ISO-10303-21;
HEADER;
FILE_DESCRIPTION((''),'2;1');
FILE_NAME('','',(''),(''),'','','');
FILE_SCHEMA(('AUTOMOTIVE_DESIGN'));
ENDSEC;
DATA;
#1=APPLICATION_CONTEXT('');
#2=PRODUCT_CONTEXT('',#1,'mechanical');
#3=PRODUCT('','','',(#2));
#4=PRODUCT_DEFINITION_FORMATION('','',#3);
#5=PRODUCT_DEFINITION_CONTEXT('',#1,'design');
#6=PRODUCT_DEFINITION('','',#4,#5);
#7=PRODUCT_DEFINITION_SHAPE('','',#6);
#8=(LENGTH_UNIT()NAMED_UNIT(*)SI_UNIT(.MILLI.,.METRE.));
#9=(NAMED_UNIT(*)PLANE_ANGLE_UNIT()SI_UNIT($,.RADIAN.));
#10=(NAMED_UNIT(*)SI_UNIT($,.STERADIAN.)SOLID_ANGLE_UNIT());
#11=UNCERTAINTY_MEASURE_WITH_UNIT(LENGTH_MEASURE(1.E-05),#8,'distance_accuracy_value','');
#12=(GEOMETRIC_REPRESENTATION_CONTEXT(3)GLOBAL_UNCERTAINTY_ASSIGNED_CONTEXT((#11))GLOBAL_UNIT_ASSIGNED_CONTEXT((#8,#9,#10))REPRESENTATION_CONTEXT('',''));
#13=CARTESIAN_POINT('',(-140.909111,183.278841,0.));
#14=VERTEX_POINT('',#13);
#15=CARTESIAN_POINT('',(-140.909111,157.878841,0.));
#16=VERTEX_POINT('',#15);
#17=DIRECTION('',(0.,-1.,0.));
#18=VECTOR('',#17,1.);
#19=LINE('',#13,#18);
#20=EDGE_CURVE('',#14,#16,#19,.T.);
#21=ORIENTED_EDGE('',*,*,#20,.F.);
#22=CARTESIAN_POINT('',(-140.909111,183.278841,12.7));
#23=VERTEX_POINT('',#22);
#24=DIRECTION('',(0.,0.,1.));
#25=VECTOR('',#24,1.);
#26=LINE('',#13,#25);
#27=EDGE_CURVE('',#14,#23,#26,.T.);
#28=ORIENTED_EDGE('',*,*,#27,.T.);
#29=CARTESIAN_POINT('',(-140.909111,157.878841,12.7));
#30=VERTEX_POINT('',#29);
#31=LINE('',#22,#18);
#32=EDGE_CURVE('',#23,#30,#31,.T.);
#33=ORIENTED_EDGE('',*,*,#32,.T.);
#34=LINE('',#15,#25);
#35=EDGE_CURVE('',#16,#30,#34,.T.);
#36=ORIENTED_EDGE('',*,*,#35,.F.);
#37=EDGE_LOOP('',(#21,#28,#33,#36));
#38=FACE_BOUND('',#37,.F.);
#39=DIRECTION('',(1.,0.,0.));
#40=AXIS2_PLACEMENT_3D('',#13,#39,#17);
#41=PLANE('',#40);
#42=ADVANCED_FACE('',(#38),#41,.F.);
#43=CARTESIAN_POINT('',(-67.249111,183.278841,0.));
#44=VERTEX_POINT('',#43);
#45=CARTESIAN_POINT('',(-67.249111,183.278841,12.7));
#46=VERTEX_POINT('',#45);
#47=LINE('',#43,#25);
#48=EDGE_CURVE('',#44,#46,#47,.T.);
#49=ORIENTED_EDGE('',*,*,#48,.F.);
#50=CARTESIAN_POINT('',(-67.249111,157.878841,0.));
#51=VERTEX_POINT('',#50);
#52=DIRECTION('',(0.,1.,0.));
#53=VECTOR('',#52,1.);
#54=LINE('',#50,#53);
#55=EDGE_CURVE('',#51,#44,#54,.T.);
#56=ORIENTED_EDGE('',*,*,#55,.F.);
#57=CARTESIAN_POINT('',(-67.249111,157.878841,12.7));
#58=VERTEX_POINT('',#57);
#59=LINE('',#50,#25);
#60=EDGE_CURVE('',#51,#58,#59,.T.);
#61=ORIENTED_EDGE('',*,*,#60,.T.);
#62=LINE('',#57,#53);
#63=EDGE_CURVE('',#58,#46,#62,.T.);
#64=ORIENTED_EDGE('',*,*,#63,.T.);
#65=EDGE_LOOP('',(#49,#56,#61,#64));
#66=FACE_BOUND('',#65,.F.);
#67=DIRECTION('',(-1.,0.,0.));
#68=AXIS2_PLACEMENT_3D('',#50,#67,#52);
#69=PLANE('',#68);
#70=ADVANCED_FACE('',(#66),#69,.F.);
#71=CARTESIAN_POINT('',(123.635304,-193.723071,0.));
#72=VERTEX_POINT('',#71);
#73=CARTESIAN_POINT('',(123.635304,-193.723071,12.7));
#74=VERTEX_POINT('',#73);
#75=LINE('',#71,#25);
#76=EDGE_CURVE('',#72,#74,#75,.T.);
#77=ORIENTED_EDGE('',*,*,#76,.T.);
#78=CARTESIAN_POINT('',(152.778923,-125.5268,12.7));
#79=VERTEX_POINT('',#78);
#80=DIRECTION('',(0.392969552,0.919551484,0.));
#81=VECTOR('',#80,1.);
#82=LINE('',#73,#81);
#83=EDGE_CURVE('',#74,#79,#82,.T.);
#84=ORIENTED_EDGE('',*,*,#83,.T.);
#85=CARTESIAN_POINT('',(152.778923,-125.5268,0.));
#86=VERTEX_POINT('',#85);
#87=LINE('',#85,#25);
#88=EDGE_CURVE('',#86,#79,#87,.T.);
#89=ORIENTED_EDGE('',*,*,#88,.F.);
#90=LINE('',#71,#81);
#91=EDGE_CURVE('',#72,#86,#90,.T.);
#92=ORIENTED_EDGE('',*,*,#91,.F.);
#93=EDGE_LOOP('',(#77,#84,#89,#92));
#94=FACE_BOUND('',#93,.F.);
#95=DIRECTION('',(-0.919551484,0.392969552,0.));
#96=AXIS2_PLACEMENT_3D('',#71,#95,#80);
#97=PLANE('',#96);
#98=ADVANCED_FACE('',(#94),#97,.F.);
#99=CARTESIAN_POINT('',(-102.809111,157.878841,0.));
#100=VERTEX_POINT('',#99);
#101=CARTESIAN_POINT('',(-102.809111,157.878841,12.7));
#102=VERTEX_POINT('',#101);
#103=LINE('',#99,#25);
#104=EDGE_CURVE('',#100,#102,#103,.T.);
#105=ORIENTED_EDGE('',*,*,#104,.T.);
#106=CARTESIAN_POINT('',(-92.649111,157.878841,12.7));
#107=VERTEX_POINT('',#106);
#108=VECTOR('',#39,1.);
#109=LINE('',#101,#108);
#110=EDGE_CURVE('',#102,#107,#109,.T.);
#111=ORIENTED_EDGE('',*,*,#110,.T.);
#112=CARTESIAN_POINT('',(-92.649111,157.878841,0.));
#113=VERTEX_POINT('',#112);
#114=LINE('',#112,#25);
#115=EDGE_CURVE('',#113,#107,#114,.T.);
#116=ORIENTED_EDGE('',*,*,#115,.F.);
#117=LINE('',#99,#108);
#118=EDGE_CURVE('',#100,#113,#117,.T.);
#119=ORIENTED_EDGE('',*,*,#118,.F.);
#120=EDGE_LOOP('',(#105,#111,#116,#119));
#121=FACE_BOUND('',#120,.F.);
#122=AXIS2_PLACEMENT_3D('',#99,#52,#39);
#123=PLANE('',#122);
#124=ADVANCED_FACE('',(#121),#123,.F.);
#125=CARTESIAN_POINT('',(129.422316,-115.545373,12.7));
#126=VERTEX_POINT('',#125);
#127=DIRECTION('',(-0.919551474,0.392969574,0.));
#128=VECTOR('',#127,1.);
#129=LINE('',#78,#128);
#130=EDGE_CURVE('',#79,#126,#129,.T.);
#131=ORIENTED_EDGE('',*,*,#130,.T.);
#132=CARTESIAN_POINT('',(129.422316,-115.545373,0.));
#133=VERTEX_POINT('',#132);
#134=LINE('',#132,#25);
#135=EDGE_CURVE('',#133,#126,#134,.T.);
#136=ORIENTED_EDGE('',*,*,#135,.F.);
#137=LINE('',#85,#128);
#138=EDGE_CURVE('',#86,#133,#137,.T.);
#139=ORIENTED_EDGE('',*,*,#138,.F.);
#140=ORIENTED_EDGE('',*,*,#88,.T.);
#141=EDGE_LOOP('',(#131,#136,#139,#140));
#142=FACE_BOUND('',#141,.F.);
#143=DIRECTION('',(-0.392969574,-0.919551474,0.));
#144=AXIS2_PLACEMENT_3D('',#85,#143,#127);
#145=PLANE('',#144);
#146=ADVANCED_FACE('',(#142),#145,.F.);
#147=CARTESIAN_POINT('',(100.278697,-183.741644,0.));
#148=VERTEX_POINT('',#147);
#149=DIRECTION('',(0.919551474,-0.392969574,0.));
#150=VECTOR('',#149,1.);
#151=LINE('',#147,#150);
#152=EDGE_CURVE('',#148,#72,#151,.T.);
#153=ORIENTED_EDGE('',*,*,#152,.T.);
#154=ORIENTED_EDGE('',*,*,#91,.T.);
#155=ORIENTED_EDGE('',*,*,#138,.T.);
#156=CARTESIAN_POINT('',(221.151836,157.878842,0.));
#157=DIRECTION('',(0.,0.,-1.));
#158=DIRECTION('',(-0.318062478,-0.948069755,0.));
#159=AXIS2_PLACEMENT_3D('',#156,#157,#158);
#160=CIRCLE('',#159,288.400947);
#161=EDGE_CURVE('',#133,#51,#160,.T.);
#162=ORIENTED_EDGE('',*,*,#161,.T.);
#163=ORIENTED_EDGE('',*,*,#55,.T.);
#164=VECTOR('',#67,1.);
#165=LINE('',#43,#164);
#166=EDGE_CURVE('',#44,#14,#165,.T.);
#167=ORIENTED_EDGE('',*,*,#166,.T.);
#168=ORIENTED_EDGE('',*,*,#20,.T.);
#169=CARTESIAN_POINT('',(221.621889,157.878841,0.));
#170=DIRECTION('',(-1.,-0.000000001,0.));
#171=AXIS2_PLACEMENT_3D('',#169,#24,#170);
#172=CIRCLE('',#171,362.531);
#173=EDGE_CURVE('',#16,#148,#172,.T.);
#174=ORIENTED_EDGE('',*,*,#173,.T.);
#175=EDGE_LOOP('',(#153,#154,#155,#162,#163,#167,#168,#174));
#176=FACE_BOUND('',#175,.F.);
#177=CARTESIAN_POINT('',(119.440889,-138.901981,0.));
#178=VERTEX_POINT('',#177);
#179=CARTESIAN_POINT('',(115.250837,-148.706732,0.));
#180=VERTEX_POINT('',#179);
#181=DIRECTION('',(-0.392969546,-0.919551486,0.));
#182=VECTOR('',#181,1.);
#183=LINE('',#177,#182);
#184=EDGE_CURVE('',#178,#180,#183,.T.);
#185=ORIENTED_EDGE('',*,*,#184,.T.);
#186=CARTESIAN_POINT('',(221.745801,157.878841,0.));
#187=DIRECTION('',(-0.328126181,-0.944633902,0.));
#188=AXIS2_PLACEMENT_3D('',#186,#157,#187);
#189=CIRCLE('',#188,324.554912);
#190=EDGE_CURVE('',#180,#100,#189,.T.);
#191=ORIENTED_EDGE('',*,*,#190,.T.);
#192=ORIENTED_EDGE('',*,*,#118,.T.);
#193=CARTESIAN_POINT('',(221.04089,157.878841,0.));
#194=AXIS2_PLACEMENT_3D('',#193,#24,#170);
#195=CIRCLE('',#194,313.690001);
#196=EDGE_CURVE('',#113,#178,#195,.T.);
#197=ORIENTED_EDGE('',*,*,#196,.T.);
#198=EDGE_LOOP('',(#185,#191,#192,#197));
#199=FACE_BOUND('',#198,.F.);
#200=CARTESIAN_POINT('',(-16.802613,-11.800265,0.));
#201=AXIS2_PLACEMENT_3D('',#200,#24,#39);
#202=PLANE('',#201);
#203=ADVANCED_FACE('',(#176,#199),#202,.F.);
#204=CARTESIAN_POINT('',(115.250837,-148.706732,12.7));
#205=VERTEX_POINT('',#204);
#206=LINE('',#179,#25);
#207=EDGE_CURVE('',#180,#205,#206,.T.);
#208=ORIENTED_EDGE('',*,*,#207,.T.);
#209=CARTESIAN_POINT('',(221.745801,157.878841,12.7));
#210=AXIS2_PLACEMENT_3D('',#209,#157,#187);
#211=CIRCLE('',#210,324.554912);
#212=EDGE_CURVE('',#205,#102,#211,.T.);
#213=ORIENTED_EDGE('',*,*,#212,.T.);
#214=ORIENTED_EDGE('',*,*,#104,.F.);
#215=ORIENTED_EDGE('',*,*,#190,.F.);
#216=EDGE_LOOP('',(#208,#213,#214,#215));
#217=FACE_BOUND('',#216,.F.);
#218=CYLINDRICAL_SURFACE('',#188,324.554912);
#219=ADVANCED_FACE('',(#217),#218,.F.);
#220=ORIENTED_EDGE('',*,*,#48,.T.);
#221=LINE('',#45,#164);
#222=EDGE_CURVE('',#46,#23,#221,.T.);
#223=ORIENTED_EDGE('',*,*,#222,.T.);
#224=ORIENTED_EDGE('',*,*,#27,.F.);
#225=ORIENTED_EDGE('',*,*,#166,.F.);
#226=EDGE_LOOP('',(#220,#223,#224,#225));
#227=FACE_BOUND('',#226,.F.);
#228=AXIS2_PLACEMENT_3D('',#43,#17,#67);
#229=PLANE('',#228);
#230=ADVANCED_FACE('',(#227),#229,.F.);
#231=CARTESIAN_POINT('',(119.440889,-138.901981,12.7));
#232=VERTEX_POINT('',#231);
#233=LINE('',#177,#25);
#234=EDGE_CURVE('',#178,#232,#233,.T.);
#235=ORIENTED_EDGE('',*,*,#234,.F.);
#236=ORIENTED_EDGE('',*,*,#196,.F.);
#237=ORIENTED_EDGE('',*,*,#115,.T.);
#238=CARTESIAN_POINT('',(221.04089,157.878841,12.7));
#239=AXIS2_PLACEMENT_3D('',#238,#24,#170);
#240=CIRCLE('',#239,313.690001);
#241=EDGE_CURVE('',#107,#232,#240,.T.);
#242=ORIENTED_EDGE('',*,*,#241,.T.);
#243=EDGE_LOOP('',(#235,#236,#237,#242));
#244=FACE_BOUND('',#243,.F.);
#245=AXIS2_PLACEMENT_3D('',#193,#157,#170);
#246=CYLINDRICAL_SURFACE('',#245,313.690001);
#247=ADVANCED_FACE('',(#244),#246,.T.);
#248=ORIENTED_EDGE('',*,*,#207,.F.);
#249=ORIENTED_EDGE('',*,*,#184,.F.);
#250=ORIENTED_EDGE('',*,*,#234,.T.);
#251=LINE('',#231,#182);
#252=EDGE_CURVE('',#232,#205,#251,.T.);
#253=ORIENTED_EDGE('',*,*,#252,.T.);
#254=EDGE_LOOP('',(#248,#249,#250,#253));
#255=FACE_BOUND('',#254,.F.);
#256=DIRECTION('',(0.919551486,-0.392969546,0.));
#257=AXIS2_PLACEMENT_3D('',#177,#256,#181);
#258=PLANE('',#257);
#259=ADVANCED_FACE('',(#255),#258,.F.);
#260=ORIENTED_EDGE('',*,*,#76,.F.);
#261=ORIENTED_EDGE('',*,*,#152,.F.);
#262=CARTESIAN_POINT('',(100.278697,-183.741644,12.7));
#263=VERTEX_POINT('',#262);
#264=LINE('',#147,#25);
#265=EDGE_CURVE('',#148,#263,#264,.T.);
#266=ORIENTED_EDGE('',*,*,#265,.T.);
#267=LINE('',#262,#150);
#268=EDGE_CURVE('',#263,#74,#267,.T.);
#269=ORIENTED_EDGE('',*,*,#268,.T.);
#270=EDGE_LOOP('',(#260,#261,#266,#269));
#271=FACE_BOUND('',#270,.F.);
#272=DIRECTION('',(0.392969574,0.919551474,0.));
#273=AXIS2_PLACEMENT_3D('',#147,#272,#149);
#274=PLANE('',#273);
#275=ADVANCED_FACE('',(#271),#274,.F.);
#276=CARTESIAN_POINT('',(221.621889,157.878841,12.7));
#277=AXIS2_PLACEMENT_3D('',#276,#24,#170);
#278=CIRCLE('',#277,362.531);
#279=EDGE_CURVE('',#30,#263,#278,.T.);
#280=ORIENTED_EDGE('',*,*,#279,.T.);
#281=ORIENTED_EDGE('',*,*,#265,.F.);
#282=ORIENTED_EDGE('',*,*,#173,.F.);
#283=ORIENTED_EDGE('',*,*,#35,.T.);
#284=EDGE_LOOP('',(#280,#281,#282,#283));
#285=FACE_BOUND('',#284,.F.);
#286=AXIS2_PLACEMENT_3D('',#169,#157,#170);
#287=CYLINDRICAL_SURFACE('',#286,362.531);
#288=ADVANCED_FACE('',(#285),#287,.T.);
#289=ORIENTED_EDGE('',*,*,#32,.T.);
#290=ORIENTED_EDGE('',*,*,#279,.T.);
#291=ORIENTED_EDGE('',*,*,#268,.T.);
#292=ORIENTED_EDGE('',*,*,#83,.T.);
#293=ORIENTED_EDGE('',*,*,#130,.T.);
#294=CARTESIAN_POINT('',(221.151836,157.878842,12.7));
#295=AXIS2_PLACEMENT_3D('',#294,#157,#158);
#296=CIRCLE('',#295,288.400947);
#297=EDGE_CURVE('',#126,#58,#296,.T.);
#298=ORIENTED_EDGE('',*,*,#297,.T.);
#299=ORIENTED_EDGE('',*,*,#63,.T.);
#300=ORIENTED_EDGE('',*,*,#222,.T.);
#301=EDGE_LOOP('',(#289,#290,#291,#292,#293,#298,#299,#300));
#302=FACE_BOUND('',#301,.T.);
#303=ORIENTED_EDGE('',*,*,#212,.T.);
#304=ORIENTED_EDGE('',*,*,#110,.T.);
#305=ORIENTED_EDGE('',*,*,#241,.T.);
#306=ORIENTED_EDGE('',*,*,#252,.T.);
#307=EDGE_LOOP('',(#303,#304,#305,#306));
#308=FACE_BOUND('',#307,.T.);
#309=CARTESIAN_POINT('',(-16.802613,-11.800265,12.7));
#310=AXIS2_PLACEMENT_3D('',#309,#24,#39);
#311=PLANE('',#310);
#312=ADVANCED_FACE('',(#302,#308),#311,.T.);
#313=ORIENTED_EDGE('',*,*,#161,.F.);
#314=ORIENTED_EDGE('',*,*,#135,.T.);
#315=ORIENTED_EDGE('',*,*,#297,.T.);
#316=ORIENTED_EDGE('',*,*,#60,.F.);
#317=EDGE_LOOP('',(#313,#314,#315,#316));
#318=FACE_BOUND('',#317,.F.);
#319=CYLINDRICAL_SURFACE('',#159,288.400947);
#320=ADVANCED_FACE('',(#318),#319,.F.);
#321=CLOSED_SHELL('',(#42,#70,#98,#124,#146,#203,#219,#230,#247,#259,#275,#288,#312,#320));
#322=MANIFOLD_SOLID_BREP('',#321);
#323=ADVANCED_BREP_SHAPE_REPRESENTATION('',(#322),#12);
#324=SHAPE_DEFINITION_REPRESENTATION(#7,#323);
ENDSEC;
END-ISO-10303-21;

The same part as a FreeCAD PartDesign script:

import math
import FreeCAD as App
import Part
import Sketcher
from FreeCAD import Vector
Q = App.Units.Quantity

doc = App.newDocument("Part")
body = doc.addObject("PartDesign::Body", "Body")

sketch1 = body.newObject("Sketcher::SketchObject", "Sketch")
sketch1.AttachmentSupport = (doc.getObject("XY_Plane"), [""])
sketch1.MapMode = "FlatFace"
sketch1.addGeometry([
    Part.ArcOfCircle(Part.Circle(Vector(221.151836, 157.878842, 0), Vector(0, 0, 1), 288.400947), math.radians(-180), math.radians(-108.545792)),
    Part.LineSegment(Vector(-67.249111, 157.878841, 0), Vector(-67.249111, 183.278841, 0)),
    Part.LineSegment(Vector(-67.249111, 183.278841, 0), Vector(-140.909111, 183.278841, 0)),
    Part.LineSegment(Vector(-140.909111, 183.278841, 0), Vector(-140.909111, 157.878841, 0)),
    Part.ArcOfCircle(Part.Circle(Vector(221.621889, 157.878841, 0), Vector(0, 0, 1), 362.531), math.radians(-180), math.radians(-109.554978)),
    Part.LineSegment(Vector(100.278697, -183.741644, 0), Vector(123.635304, -193.723071, 0)),
    Part.LineSegment(Vector(123.635304, -193.723071, 0), Vector(152.778923, -125.5268, 0)),
    Part.LineSegment(Vector(152.778923, -125.5268, 0), Vector(129.422316, -115.545373, 0)),
    Part.ArcOfCircle(Part.Circle(Vector(221.745801, 157.878841, 0), Vector(0, 0, 1), 324.554912), math.radians(180), math.radians(250.844918)),
    Part.LineSegment(Vector(-102.809111, 157.878841, 0), Vector(-92.649111, 157.878841, 0)),
    Part.ArcOfCircle(Part.Circle(Vector(221.04089, 157.878841, 0), Vector(0, 0, 1), 313.690001), math.radians(-180), math.radians(-108.898136)),
    Part.LineSegment(Vector(119.440889, -138.901981, 0), Vector(115.250837, -148.706732, 0)),
], False)
sketch1.addConstraint([
    Sketcher.Constraint("Tangent", 0, 1, 1, 1),
    Sketcher.Constraint("Coincident", 1, 2, 2, 1),
    Sketcher.Constraint("Coincident", 2, 2, 3, 1),
    Sketcher.Constraint("Tangent", 3, 2, 4, 1),
    Sketcher.Constraint("Coincident", 4, 2, 5, 1),
    Sketcher.Constraint("Coincident", 5, 2, 6, 1),
    Sketcher.Constraint("Coincident", 6, 2, 7, 1),
    Sketcher.Constraint("Coincident", 7, 2, 0, 2),
    Sketcher.Constraint("Coincident", 8, 1, 9, 1),
    Sketcher.Constraint("Coincident", 9, 2, 10, 1),
    Sketcher.Constraint("Coincident", 10, 2, 11, 1),
    Sketcher.Constraint("Coincident", 11, 2, 8, 2),
    Sketcher.Constraint("Vertical", 1),
    Sketcher.Constraint("Horizontal", 2),
    Sketcher.Constraint("Vertical", 3),
    Sketcher.Constraint("Horizontal", 9),
    Sketcher.Constraint("Perpendicular", 5, 6),
    Sketcher.Constraint("Perpendicular", 6, 7),
    Sketcher.Constraint("Perpendicular", 7, 11),
    Sketcher.Constraint("Horizontal", 0, 3, 4, 3),
    Sketcher.Constraint("Horizontal", 4, 3, 8, 3),
    Sketcher.Constraint("Horizontal", 8, 3, 10, 3),
    Sketcher.Constraint("Horizontal", 3, 2, 8, 1),
    Sketcher.Constraint("Equal", 5, 7),
    Sketcher.Constraint("DistanceY", 1, 1, 1, 2, Q("1 in")),
    Sketcher.Constraint("Radius", 10, Q("12.35 in")),
    Sketcher.Constraint("Distance", 5, Q("1 in")),
    Sketcher.Constraint("DistanceX", 2, 2, 2, 1, Q("2.9 in")),
    Sketcher.Constraint("DistanceX", 9, 1, 9, 2, Q("0.4 in")),
    Sketcher.Constraint("DistanceX", 9, 2, 0, 1, Q("1 in")),
    Sketcher.Constraint("DistanceX", 10, 2, 10, 3, Q("4 in")),
    Sketcher.Constraint("Radius", 4, 362.531),
    Sketcher.Constraint("DistanceY", 6, 2, -1, 1, Q("4.942 in")),
    Sketcher.Constraint("Radius", 8, 324.554912),
    Sketcher.Constraint("Radius", 0, 288.400947),
    Sketcher.Constraint("DistanceX", -1, 1, 8, 3, 221.745801),
    Sketcher.Constraint("DistanceY", 5, 2, 7, 2, 78.177698),
    Sketcher.Constraint("DistanceY", -1, 1, 0, 3, 157.878842),
])
pad1 = body.newObject("PartDesign::Pad", "Pad")
pad1.Profile = sketch1
pad1.Length = Q("0.5 in")

doc.recompute()
